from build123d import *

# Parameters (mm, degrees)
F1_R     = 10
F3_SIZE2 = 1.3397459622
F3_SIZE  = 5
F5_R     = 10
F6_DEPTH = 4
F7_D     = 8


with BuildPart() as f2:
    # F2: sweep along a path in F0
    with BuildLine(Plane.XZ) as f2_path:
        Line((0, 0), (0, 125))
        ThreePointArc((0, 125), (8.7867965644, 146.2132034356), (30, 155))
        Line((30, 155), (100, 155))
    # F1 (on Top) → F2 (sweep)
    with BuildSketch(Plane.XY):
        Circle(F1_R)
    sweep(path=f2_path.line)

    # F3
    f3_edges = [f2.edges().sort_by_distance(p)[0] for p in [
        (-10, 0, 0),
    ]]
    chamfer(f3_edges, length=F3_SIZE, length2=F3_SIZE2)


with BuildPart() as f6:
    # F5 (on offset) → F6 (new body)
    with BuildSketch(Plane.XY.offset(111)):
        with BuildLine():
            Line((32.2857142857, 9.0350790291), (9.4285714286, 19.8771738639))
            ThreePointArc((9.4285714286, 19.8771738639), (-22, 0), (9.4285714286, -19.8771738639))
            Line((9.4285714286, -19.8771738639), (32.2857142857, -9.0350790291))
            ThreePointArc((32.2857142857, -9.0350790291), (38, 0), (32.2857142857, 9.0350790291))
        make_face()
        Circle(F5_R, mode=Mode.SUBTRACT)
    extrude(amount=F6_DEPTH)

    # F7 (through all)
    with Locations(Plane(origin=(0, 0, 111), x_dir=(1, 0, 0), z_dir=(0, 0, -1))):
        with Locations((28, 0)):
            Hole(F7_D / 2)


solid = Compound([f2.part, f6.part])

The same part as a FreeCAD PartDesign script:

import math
import FreeCAD as App
import Part
import Sketcher
from FreeCAD import Vector
Q = App.Units.Quantity


def edges_at(feature, points):
    """Names of the edges that pass closest to the given points."""
    edges = feature.Shape.Edges
    near = lambda p: min(range(len(edges)), key=lambda i: edges[i].distToShape(Part.Vertex(*p))[0])
    return sorted({f"Edge{near(p) + 1}" for p in points})

doc = App.newDocument("Part")
body = doc.addObject("PartDesign::Body", "Body")

sketch1 = body.newObject("Sketcher::SketchObject", "Sketch")
sketch1.AttachmentSupport = (doc.getObject("XY_Plane"), [""])
sketch1.MapMode = "FlatFace"
sketch1.addGeometry(Part.Circle(Vector(0, 0, 0), Vector(0, 0, 1), 10), False)
sketch1.addConstraint([
    Sketcher.Constraint("Coincident", 0, 3, -1, 1),
    Sketcher.Constraint("Diameter", 0, Q("20 mm")),
])

sketch2 = body.newObject("Sketcher::SketchObject", "Sketch001")
sketch2.AttachmentSupport = (doc.getObject("XZ_Plane"), [""])
sketch2.MapMode = "FlatFace"
sketch2.addGeometry([
    Part.LineSegment(Vector(0, 0, 0), Vector(0, 125, 0)),
    Part.ArcOfCircle(Part.Circle(Vector(30, 125, 0), Vector(0, 0, 1), 30), math.radians(90), math.radians(180)),
    Part.LineSegment(Vector(30, 155, 0), Vector(100, 155, 0)),
], False)
sketch2.addConstraint([
    Sketcher.Constraint("Tangent", 0, 2, 1, 2),
    Sketcher.Constraint("Tangent", 1, 1, 2, 1),
    Sketcher.Constraint("Vertical", 0),
    Sketcher.Constraint("Horizontal", 2),
    Sketcher.Constraint("Coincident", 0, 1, -1, 1),
    Sketcher.Constraint("Radius", 1, Q("30 mm")),
    Sketcher.Constraint("DistanceX", 2, 1, 2, 2, Q("70 mm")),
    Sketcher.Constraint("DistanceY", 0, 1, 0, 2, Q("125 mm")),
])
doc.recompute()

additivepipe = body.newObject("PartDesign::AdditivePipe", "AdditivePipe")
additivepipe.Profile = sketch1
additivepipe.Spine = (sketch2, ["Edge1", "Edge2", "Edge3"])
doc.recompute()

chamfer = body.newObject("PartDesign::Chamfer", "Chamfer")
chamfer.Base = (additivepipe, edges_at(additivepipe, [(-10, 0, 0)]))
chamfer.ChamferType = "Two distances"
chamfer.Size = 5
chamfer.Size2 = 1.339746
chamfer.FlipDirection = True
body2 = doc.addObject("PartDesign::Body", "Body001")

sketch3 = body2.newObject("Sketcher::SketchObject", "Sketch002")
sketch3.AttachmentSupport = (doc.getObject("XY_Plane001"), [""])
sketch3.MapMode = "FlatFace"
sketch3.AttachmentOffset = App.Placement(Vector(0, 0, 111), App.Rotation())
sketch3.addGeometry([
    Part.LineSegment(Vector(32.285714, 9.035079, 0), Vector(9.428571, 19.877174, 0)),
    Part.ArcOfCircle(Part.Circle(Vector(0, 0, 0), Vector(0, 0, 1), 22), math.radians(64.623066), math.radians(295.376934)),
    Part.LineSegment(Vector(9.428571, -19.877174, 0), Vector(32.285714, -9.035079, 0)),
    Part.ArcOfCircle(Part.Circle(Vector(28, 0, 0), Vector(0, 0, 1), 10), math.radians(-64.623066), math.radians(64.623066)),
    Part.Circle(Vector(0, 0, 0), Vector(0, 0, 1), 10),
], False)
sketch3.addConstraint([
    Sketcher.Constraint("Tangent", 0, 2, 1, 1),
    Sketcher.Constraint("Tangent", 1, 2, 2, 1),
    Sketcher.Constraint("Tangent", 2, 2, 3, 1),
    Sketcher.Constraint("Tangent", 3, 2, 0, 1),
    Sketcher.Constraint("Coincident", 1, 3, -1, 1),
    Sketcher.Constraint("Coincident", 4, 3, -1, 1),
    Sketcher.Constraint("Equal", 3, 4),
    Sketcher.Constraint("PointOnObject", 3, 3, -1),
    Sketcher.Constraint("Diameter", 4, Q("20 mm")),
    Sketcher.Constraint("Radius", 1, Q("22 mm")),
    Sketcher.Constraint("DistanceX", -1, 1, 3, 3, Q("28 mm")),
])
pad1 = body2.newObject("PartDesign::Pad", "Pad")
pad1.Profile = sketch3
pad1.Length = 4

sketch4 = body2.newObject("Sketcher::SketchObject", "Sketch003")
sketch4.AttachmentSupport = (doc.getObject("XY_Plane001"), [""])
sketch4.MapMode = "FlatFace"
sketch4.AttachmentOffset = App.Placement(Vector(0, 0, 111), App.Rotation())
sketch4.addGeometry(Part.Circle(Vector(28, 0, 0), Vector(0, 0, 1), 4), False)
sketch4.addConstraint([
    Sketcher.Constraint("PointOnObject", 0, 3, -1),
    Sketcher.Constraint("Diameter", 0, Q("8 mm")),
    Sketcher.Constraint("DistanceX", -1, 1, 0, 3, Q("28 mm")),
])
doc.recompute()
hole = body2.newObject("PartDesign::Hole", "Hole")
hole.Profile = sketch4
hole.ThreadType = "None"
hole.Diameter = 8
hole.DepthType = "ThroughAll"
hole.Reversed = True

doc.recompute()
